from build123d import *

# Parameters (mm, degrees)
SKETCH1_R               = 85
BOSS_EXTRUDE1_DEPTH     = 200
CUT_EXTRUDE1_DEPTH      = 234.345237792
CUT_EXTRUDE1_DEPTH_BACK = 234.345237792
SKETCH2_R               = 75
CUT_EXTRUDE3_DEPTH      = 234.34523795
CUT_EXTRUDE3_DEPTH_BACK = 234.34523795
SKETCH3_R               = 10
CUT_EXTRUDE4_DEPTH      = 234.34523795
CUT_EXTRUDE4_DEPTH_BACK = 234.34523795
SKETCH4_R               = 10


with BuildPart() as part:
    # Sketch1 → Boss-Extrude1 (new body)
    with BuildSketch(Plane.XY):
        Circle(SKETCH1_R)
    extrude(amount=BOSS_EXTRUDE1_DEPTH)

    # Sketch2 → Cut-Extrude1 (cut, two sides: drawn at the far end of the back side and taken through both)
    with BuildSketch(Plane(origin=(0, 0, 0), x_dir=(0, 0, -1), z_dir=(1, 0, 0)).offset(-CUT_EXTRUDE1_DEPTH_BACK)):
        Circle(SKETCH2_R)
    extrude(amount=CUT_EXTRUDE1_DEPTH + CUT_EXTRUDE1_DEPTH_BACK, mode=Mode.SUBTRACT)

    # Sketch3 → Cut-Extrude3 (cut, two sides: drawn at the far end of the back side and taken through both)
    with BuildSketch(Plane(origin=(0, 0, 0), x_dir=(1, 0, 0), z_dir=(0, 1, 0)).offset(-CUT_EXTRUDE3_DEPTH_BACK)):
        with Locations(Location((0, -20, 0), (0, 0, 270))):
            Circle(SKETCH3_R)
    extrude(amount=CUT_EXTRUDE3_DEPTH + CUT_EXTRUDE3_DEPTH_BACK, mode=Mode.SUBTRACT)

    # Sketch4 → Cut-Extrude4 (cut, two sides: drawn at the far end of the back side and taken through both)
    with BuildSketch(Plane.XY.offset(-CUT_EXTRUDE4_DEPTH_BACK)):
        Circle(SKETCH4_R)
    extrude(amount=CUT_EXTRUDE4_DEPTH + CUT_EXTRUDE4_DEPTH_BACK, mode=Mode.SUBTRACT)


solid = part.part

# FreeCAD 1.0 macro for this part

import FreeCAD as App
import Part
import Sketcher
Q = App.Units.Quantity

doc = App.newDocument("Part")
body = doc.addObject("PartDesign::Body", "Body")

sketch1 = body.newObject("Sketcher::SketchObject", "Sketch")
sketch1.AttachmentSupport = (doc.getObject("XY_Plane"), [""])
sketch1.MapMode = "FlatFace"
sketch1.addGeometry(Part.Circle(App.Vector(0, 0, 0), App.Vector(0, 0, 1), 85), False)
sketch1.addConstraint(Sketcher.Constraint("Coincident", 0, 3, -1, 1))
sketch1.addConstraint(Sketcher.Constraint("Diameter", 0, Q("170 mm")))
pad1 = body.newObject("PartDesign::Pad", "Pad")
pad1.Profile = sketch1
pad1.Length = 200

sketch2 = body.newObject("Sketcher::SketchObject", "Sketch001")
sketch2.AttachmentSupport = (doc.getObject("YZ_Plane"), [""])
sketch2.MapMode = "FlatFace"
sketch2.addGeometry(Part.Circle(App.Vector(0, 0, 0), App.Vector(0, 0, 1), 75), False)
sketch2.addConstraint(Sketcher.Constraint("Coincident", 0, 3, -1, 1))
sketch2.addConstraint(Sketcher.Constraint("Diameter", 0, Q("150 mm")))
pocket1 = body.newObject("PartDesign::Pocket", "Pocket")
pocket1.Profile = sketch2
pocket1.Type = "ThroughAll"
pocket1.Midplane = True

sketch3 = body.newObject("Sketcher::SketchObject", "Sketch002")
sketch3.AttachmentSupport = (doc.getObject("XZ_Plane"), [""])
sketch3.MapMode = "FlatFace"
sketch3.addGeometry(Part.Circle(App.Vector(0, 20, 0), App.Vector(0, 0, 1), 10), False)
sketch3.addConstraint(Sketcher.Constraint("PointOnObject", 0, 3, -2))
sketch3.addConstraint(Sketcher.Constraint("Diameter", 0, Q("20 mm")))
sketch3.addConstraint(Sketcher.Constraint("DistanceY", -1, 1, 0, 3, Q("20 mm")))
pocket2 = body.newObject("PartDesign::Pocket", "Pocket001")
pocket2.Profile = sketch3
pocket2.Type = "ThroughAll"
pocket2.Midplane = True

sketch4 = body.newObject("Sketcher::SketchObject", "Sketch003")
sketch4.AttachmentSupport = (doc.getObject("XY_Plane"), [""])
sketch4.MapMode = "FlatFace"
sketch4.addGeometry(Part.Circle(App.Vector(0, 0, 0), App.Vector(0, 0, 1), 10), False)
sketch4.addConstraint(Sketcher.Constraint("Coincident", 0, 3, -1, 1))
sketch4.addConstraint(Sketcher.Constraint("Diameter", 0, Q("20 mm")))
pocket3 = body.newObject("PartDesign::Pocket", "Pocket002")
pocket3.Profile = sketch4
pocket3.Type = "ThroughAll"
pocket3.Midplane = True

doc.recompute()
